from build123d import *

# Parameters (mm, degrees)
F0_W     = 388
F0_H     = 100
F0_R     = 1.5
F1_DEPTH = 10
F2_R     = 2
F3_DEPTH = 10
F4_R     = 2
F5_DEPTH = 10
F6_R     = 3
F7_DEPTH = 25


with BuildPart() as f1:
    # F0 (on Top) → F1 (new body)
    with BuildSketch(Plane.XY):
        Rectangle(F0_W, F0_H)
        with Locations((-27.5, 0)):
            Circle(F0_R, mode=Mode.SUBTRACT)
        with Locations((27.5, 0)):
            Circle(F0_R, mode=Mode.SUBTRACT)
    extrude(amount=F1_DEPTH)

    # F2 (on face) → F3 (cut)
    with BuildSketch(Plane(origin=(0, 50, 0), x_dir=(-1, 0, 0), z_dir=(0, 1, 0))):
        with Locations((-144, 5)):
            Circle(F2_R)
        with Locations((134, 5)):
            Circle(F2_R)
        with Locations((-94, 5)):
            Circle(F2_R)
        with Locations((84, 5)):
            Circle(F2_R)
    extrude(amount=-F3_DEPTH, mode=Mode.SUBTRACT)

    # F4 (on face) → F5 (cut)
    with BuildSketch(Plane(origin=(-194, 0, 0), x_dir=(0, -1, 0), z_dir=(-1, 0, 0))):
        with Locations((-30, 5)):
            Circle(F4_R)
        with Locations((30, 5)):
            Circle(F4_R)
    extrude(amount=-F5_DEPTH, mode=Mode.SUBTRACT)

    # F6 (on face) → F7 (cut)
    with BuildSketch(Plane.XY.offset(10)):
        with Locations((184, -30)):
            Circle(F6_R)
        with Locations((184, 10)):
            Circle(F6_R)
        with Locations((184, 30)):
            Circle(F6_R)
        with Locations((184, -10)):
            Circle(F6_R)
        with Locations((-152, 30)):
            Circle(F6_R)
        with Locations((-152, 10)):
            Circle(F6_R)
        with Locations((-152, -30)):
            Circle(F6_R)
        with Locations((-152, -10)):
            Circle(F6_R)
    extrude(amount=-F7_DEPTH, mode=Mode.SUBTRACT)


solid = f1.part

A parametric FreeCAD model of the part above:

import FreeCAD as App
import Part
import Sketcher
Q = App.Units.Quantity


def add_polygon(sketch, points):
    """Adds a closed chain of lines whose ends are joined by coincident constraints."""
    first, n = sketch.GeometryCount, len(points)
    for a, b in zip(points, points[1:] + points[:1]):
        sketch.addGeometry(Part.LineSegment(App.Vector(*a, 0), App.Vector(*b, 0)), False)
    for i in range(n):
        sketch.addConstraint(Sketcher.Constraint("Coincident", first + i, 2, first + (i + 1) % n, 1))

doc = App.newDocument("Part")
body = doc.addObject("PartDesign::Body", "Body")

sketch1 = doc.addObject("Sketcher::SketchObject", "Sketch")
body.addObject(sketch1)
sketch1.AttachmentSupport = (doc.XY_Plane, [""])
sketch1.MapMode = "FlatFace"
add_polygon(sketch1, [(-194, 50), (-194, -50), (194, -50), (194, 50)])
sketch1.addGeometry(Part.Circle(App.Vector(-27.5, 0, 0), App.Vector(0, 0, 1), 1.5), False)
sketch1.addGeometry(Part.Circle(App.Vector(27.5, 0, 0), App.Vector(0, 0, 1), 1.5), False)
sketch1.addConstraint(Sketcher.Constraint("Vertical", 0))
sketch1.addConstraint(Sketcher.Constraint("Horizontal", 1))
sketch1.addConstraint(Sketcher.Constraint("Vertical", 2))
sketch1.addConstraint(Sketcher.Constraint("Horizontal", 3))
sketch1.addConstraint(Sketcher.Constraint("Equal", 4, 5))
sketch1.addConstraint(Sketcher.Constraint("Symmetric", 4, 3, 5, 3, -1, 1))
sketch1.addConstraint(Sketcher.Constraint("Symmetric", 0, 2, 2, 2, -1, 1))
sketch1.addConstraint(Sketcher.Constraint("PointOnObject", 4, 3, -1))
sketch1.addConstraint(Sketcher.Constraint("Diameter", 4, Q("3 mm")))
sketch1.addConstraint(Sketcher.Constraint("DistanceX", 1, 1, 1, 2, Q("388 mm")))
sketch1.addConstraint(Sketcher.Constraint("DistanceY", 0, 2, 0, 1, Q("100 mm")))
sketch1.addConstraint(Sketcher.Constraint("DistanceX", 4, 3, 5, 3, Q("55 mm")))
pad1 = doc.addObject("PartDesign::Pad", "Pad")
body.addObject(pad1)
pad1.Profile = sketch1
pad1.Length = 10

sketch2 = doc.addObject("Sketcher::SketchObject", "Sketch001")
body.addObject(sketch2)
sketch2.AttachmentSupport = (doc.XZ_Plane, [""])
sketch2.MapMode = "FlatFace"
sketch2.AttachmentOffset = App.Placement(App.Vector(0, 0, -50), App.Rotation())
sketch2.addGeometry(Part.Circle(App.Vector(144, 5, 0), App.Vector(0, 0, 1), 2), False)
sketch2.addGeometry(Part.Circle(App.Vector(-134, 5, 0), App.Vector(0, 0, 1), 2), False)
sketch2.addGeometry(Part.Circle(App.Vector(94, 5, 0), App.Vector(0, 0, 1), 2), False)
sketch2.addGeometry(Part.Circle(App.Vector(-84, 5, 0), App.Vector(0, 0, 1), 2), False)
sketch2.addConstraint(Sketcher.Constraint("Equal", 0, 1))
sketch2.addConstraint(Sketcher.Constraint("Equal", 1, 2))
sketch2.addConstraint(Sketcher.Constraint("Equal", 2, 3))
sketch2.addConstraint(Sketcher.Constraint("Horizontal", 0, 3, 1, 3))
sketch2.addConstraint(Sketcher.Constraint("Horizontal", 1, 3, 2, 3))
sketch2.addConstraint(Sketcher.Constraint("Horizontal", 2, 3, 3, 3))
sketch2.addConstraint(Sketcher.Constraint("Diameter", 0, Q("4 mm")))
sketch2.addConstraint(Sketcher.Constraint("DistanceX", -1, 1, 0, 3, Q("144 mm")))
sketch2.addConstraint(Sketcher.Constraint("DistanceY", -1, 1, 0, 3, Q("5 mm")))
sketch2.addConstraint(Sketcher.Constraint("DistanceX", 1, 3, -1, 1, Q("134 mm")))
sketch2.addConstraint(Sketcher.Constraint("DistanceX", -1, 1, 2, 3, Q("94 mm")))
sketch2.addConstraint(Sketcher.Constraint("DistanceX", 3, 3, -1, 1, Q("84 mm")))
pocket1 = doc.addObject("PartDesign::Pocket", "Pocket")
body.addObject(pocket1)
pocket1.Profile = sketch2
pocket1.Length = 10
pocket1.Reversed = True

sketch3 = doc.addObject("Sketcher::SketchObject", "Sketch002")
body.addObject(sketch3)
sketch3.AttachmentSupport = (doc.YZ_Plane, [""])
sketch3.MapMode = "FlatFace"
sketch3.AttachmentOffset = App.Placement(App.Vector(0, 0, -194), App.Rotation())
sketch3.addGeometry(Part.Circle(App.Vector(30, 5, 0), App.Vector(0, 0, 1), 2), False)
sketch3.addGeometry(Part.Circle(App.Vector(-30, 5, 0), App.Vector(0, 0, 1), 2), False)
sketch3.addConstraint(Sketcher.Constraint("Equal", 0, 1))
sketch3.addConstraint(Sketcher.Constraint("Symmetric", 0, 3, 1, 3, -2))
sketch3.addConstraint(Sketcher.Constraint("Diameter", 0, Q("4 mm")))
sketch3.addConstraint(Sketcher.Constraint("DistanceX", -1, 1, 0, 3, Q("30 mm")))
sketch3.addConstraint(Sketcher.Constraint("DistanceY", -1, 1, 0, 3, Q("5 mm")))
pocket2 = doc.addObject("PartDesign::Pocket", "Pocket001")
body.addObject(pocket2)
pocket2.Profile = sketch3
pocket2.Length = 10
pocket2.Reversed = True

sketch4 = doc.addObject("Sketcher::SketchObject", "Sketch003")
body.addObject(sketch4)
sketch4.AttachmentSupport = (doc.XY_Plane, [""])
sketch4.MapMode = "FlatFace"
sketch4.AttachmentOffset = App.Placement(App.Vector(0, 0, 10), App.Rotation())
sketch4.addGeometry(Part.Circle(App.Vector(184, -30, 0), App.Vector(0, 0, 1), 3), False)
sketch4.addGeometry(Part.Circle(App.Vector(184, 10, 0), App.Vector(0, 0, 1), 3), False)
sketch4.addGeometry(Part.Circle(App.Vector(184, 30, 0), App.Vector(0, 0, 1), 3), False)
sketch4.addGeometry(Part.Circle(App.Vector(184, -10, 0), App.Vector(0, 0, 1), 3), False)
sketch4.addGeometry(Part.Circle(App.Vector(-152, 30, 0), App.Vector(0, 0, 1), 3), False)
sketch4.addGeometry(Part.Circle(App.Vector(-152, 10, 0), App.Vector(0, 0, 1), 3), False)
sketch4.addGeometry(Part.Circle(App.Vector(-152, -30, 0), App.Vector(0, 0, 1), 3), False)
sketch4.addGeometry(Part.Circle(App.Vector(-152, -10, 0), App.Vector(0, 0, 1), 3), False)
sketch4.addConstraint(Sketcher.Constraint("Equal", 0, 1))
sketch4.addConstraint(Sketcher.Constraint("Equal", 1, 2))
sketch4.addConstraint(Sketcher.Constraint("Equal", 2, 3))
sketch4.addConstraint(Sketcher.Constraint("Equal", 3, 4))
sketch4.addConstraint(Sketcher.Constraint("Equal", 4, 5))
sketch4.addConstraint(Sketcher.Constraint("Equal", 5, 6))
sketch4.addConstraint(Sketcher.Constraint("Equal", 6, 7))
sketch4.addConstraint(Sketcher.Constraint("Symmetric", 0, 3, 2, 3, -1))
sketch4.addConstraint(Sketcher.Constraint("Symmetric", 1, 3, 3, 3, -1))
sketch4.addConstraint(Sketcher.Constraint("Symmetric", 4, 3, 6, 3, -1))
sketch4.addConstraint(Sketcher.Constraint("Symmetric", 5, 3, 7, 3, -1))
sketch4.addConstraint(Sketcher.Constraint("Horizontal", 2, 3, 4, 3))
sketch4.addConstraint(Sketcher.Constraint("Horizontal", 1, 3, 5, 3))
sketch4.addConstraint(Sketcher.Constraint("Vertical", 0, 3, 1, 3))
sketch4.addConstraint(Sketcher.Constraint("Vertical", 4, 3, 5, 3))
sketch4.addConstraint(Sketcher.Constraint("Diameter", 0, Q("6 mm")))
sketch4.addConstraint(Sketcher.Constraint("DistanceX", -1, 1, 0, 3, Q("184 mm")))
sketch4.addConstraint(Sketcher.Constraint("DistanceY", 0, 3, -1, 1, Q("30 mm")))
sketch4.addConstraint(Sketcher.Constraint("DistanceY", -1, 1, 1, 3, Q("10 mm")))
sketch4.addConstraint(Sketcher.Constraint("DistanceX", 4, 3, -1, 1, Q("152 mm")))
pocket3 = doc.addObject("PartDesign::Pocket", "Pocket002")
body.addObject(pocket3)
pocket3.Profile = sketch4
pocket3.Length = 25

doc.recompute()
